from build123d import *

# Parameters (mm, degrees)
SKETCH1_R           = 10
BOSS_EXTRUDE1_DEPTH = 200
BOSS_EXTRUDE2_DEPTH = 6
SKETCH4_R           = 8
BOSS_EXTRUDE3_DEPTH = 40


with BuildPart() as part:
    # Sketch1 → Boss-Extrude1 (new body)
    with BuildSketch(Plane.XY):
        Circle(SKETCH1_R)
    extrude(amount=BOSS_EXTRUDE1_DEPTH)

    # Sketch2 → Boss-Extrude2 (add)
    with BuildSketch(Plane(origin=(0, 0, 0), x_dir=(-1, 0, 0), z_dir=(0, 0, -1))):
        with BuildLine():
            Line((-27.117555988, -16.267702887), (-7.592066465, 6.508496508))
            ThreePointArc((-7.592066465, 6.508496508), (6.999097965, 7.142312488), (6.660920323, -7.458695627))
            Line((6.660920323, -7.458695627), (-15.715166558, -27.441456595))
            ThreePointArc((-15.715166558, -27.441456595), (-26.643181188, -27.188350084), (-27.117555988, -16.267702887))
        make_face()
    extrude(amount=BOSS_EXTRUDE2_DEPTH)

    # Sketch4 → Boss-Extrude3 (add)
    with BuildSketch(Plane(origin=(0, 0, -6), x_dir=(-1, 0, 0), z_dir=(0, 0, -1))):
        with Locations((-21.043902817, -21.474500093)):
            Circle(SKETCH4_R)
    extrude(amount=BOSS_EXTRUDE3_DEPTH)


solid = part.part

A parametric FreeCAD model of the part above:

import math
import FreeCAD as App
import Part
import Sketcher

V = App.Vector

doc = App.newDocument("Part")
params = doc.addObject("Spreadsheet::Sheet", "Params")
for row, (alias, value) in enumerate([
    ("sketch1_diameter", "20 mm"),
    ("pad1_length", "200 mm"),
    ("sketch2_radius", "8 mm"),
    ("sketch2_radius2", "10 mm"),
    ("sketch2_length", "30 mm"),
    ("pad2_length", "6 mm"),
    ("sketch3_diameter", "16 mm"),
    ("pad3_length", "40 mm"),
], start=1):
    params.set(f"A{row}", alias)
    params.set(f"B{row}", "=" + value)
    params.setAlias(f"B{row}", alias)

body = doc.addObject("PartDesign::Body", "Body")

# Sketch on XY plane
sketch1 = doc.addObject("Sketcher::SketchObject", "Sketch")
body.addObject(sketch1)
sketch1.AttachmentSupport = (doc.XY_Plane, [""])
sketch1.MapMode = "FlatFace"
sketch1.addGeometry(Part.Circle(V(0, 0, 0), V(0, 0, 1), 10), False)
sketch1.addConstraint([
    Sketcher.Constraint("Coincident", 0, 3, -1, 1),
    Sketcher.Constraint("Diameter", 0, 20.0),
])
sketch1.setExpression("Constraints[1]", "Params.sketch1_diameter")
pad1 = doc.addObject("PartDesign::Pad", "Pad")
body.addObject(pad1)
pad1.Profile = sketch1
pad1.setExpression("Length", "Params.pad1_length")

# Sketch on XY plane
sketch2 = doc.addObject("Sketcher::SketchObject", "Sketch001")
body.addObject(sketch2)
sketch2.AttachmentSupport = (doc.XY_Plane, [""])
sketch2.MapMode = "FlatFace"
sketch2.addGeometry([
    Part.LineSegment(V(8, 7, 0), V(27, -16, 0)),
    Part.ArcOfCircle(Part.Circle(V(21, -21, 0), V(0, 0, 1), 8), math.radians(-132), math.radians(41)),
    Part.LineSegment(V(16, -27, 0), V(-7, -7, 0)),
    Part.ArcOfCircle(Part.Circle(V(0, 0, 0), V(0, 0, 1), 10), math.radians(41), math.radians(228)),
], False)
sketch2.addConstraint([
    Sketcher.Constraint("Tangent", 0, 2, 1, 2),
    Sketcher.Constraint("Tangent", 1, 1, 2, 1),
    Sketcher.Constraint("Tangent", 2, 2, 3, 2),
    Sketcher.Constraint("Tangent", 3, 1, 0, 1),
    Sketcher.Constraint("Coincident", 3, 3, -1, 1),
    Sketcher.Constraint("Radius", 1, 8.0),
    Sketcher.Constraint("Radius", 3, 10.0),
    Sketcher.Constraint("Distance", 0, 30.0),
    Sketcher.Constraint("DistanceY", 1, 3, -1, 1, 21.4745),
])
sketch2.setExpression("Constraints[5]", "Params.sketch2_radius")
sketch2.setExpression("Constraints[6]", "Params.sketch2_radius2")
sketch2.setExpression("Constraints[7]", "Params.sketch2_length")
pad2 = doc.addObject("PartDesign::Pad", "Pad001")
body.addObject(pad2)
pad2.Profile = sketch2
pad2.setExpression("Length", "Params.pad2_length")
pad2.Reversed = True

# Sketch on XY plane
sketch3 = doc.addObject("Sketcher::SketchObject", "Sketch002")
body.addObject(sketch3)
sketch3.AttachmentSupport = (doc.XY_Plane, [""])
sketch3.MapMode = "FlatFace"
sketch3.AttachmentOffset = App.Placement(V(0, 0, -6), App.Rotation())
sketch3.addGeometry(Part.Circle(V(21, -21, 0), V(0, 0, 1), 8), False)
sketch3.addConstraint([
    Sketcher.Constraint("Diameter", 0, 16.0),
    Sketcher.Constraint("DistanceY", 0, 3, -1, 1, 21.4745),
    Sketcher.Constraint("DistanceX", -1, 1, 0, 3, 21.043903),
])
sketch3.setExpression("Constraints[0]", "Params.sketch3_diameter")
pad3 = doc.addObject("PartDesign::Pad", "Pad002")
body.addObject(pad3)
pad3.Profile = sketch3
pad3.setExpression("Length", "Params.pad3_length")
pad3.Reversed = True

doc.recompute()
